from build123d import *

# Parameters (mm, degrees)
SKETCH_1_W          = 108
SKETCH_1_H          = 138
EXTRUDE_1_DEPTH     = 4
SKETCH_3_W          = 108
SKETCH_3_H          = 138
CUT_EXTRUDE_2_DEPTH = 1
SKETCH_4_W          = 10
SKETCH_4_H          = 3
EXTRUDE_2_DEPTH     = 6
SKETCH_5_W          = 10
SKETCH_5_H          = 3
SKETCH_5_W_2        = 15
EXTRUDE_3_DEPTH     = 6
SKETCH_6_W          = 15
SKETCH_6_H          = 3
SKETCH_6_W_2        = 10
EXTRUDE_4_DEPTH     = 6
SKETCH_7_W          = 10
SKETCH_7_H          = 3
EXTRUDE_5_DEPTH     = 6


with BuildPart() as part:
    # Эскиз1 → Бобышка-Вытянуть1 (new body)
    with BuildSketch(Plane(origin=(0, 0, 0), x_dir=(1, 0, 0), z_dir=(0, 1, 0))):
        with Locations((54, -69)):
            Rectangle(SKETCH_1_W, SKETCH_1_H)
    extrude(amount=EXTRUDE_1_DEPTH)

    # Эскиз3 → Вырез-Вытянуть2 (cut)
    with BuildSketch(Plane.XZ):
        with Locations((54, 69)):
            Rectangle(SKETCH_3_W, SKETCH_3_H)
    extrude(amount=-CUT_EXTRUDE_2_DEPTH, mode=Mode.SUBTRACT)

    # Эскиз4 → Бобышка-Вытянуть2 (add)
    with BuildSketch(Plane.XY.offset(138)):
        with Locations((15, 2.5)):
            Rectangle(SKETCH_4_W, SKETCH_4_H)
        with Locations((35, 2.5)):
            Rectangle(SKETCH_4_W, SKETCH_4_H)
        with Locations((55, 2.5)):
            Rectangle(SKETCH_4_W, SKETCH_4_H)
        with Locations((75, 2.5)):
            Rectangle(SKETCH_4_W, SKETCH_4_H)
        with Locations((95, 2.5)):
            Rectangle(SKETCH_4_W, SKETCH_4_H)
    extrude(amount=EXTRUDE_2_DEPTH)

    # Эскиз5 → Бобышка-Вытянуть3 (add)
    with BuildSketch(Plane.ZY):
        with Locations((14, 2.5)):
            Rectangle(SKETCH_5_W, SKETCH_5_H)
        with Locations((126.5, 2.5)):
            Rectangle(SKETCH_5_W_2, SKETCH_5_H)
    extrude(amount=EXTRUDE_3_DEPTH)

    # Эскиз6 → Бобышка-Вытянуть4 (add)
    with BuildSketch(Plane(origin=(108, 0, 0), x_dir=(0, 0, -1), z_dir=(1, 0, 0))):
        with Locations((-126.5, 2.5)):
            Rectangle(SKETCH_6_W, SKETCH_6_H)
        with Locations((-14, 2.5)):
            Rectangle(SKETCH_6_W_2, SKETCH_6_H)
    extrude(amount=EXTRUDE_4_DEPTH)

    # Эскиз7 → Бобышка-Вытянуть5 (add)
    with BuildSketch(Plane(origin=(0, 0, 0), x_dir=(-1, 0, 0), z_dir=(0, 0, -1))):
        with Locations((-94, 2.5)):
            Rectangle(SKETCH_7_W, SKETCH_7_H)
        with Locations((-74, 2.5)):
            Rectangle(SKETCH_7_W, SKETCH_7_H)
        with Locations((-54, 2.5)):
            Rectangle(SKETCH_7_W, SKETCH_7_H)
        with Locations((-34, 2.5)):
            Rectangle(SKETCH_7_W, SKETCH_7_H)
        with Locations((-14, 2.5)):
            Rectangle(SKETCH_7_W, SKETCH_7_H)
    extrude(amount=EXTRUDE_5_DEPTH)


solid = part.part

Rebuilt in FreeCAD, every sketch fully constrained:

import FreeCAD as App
import Part
import Sketcher
from FreeCAD import Vector
Q = App.Units.Quantity


def add_polygon(sketch, points):
    """Adds a closed chain of lines whose ends are joined by coincident constraints."""
    first, n = sketch.GeometryCount, len(points)
    for a, b in zip(points, points[1:] + points[:1]):
        sketch.addGeometry(Part.LineSegment(App.Vector(*a, 0), App.Vector(*b, 0)), False)
    for i in range(n):
        sketch.addConstraint(Sketcher.Constraint("Coincident", first + i, 2, first + (i + 1) % n, 1))

doc = App.newDocument("Part")
body = doc.addObject("PartDesign::Body", "Body")

sketch1 = body.newObject("Sketcher::SketchObject", "Sketch")
sketch1.AttachmentSupport = (doc.getObject("XZ_Plane"), [""])
sketch1.MapMode = "FlatFace"
add_polygon(sketch1, [(0, 0), (0, 138), (108, 138), (108, 0)])
sketch1.addConstraint(Sketcher.Constraint("Vertical", 0))
sketch1.addConstraint(Sketcher.Constraint("Horizontal", 1))
sketch1.addConstraint(Sketcher.Constraint("Vertical", 2))
sketch1.addConstraint(Sketcher.Constraint("Horizontal", 3))
sketch1.addConstraint(Sketcher.Constraint("Coincident", 3, 2, -1, 1))
sketch1.addConstraint(Sketcher.Constraint("DistanceX", 1, 1, 1, 2, Q("108 mm")))
sketch1.addConstraint(Sketcher.Constraint("DistanceY", 0, 1, 0, 2, Q("138 mm")))
pad1 = body.newObject("PartDesign::Pad", "Pad")
pad1.Profile = sketch1
pad1.Length = 4
pad1.Reversed = True

sketch2 = body.newObject("Sketcher::SketchObject", "Sketch001")
sketch2.AttachmentSupport = (doc.getObject("XZ_Plane"), [""])
sketch2.MapMode = "FlatFace"
add_polygon(sketch2, [(0, 138), (0, 0), (108, 0), (108, 138)])
sketch2.addConstraint(Sketcher.Constraint("Vertical", 0))
sketch2.addConstraint(Sketcher.Constraint("Horizontal", 1))
sketch2.addConstraint(Sketcher.Constraint("Vertical", 2))
sketch2.addConstraint(Sketcher.Constraint("Horizontal", 3))
sketch2.addConstraint(Sketcher.Constraint("Coincident", 0, 2, -1, 1))
sketch2.addConstraint(Sketcher.Constraint("DistanceX", 1, 1, 1, 2, Q("108 mm")))
sketch2.addConstraint(Sketcher.Constraint("DistanceY", 0, 2, 0, 1, Q("138 mm")))
pocket1 = body.newObject("PartDesign::Pocket", "Pocket")
pocket1.Profile = sketch2
pocket1.Length = 1

sketch3 = body.newObject("Sketcher::SketchObject", "Sketch002")
sketch3.AttachmentSupport = (doc.getObject("XY_Plane"), [""])
sketch3.MapMode = "FlatFace"
sketch3.AttachmentOffset = App.Placement(Vector(0, 0, 138), App.Rotation())
add_polygon(sketch3, [(10, 4), (10, 1), (20, 1), (20, 4)])
add_polygon(sketch3, [(30, 4), (30, 1), (40, 1), (40, 4)])
add_polygon(sketch3, [(50, 4), (50, 1), (60, 1), (60, 4)])
add_polygon(sketch3, [(70, 4), (70, 1), (80, 1), (80, 4)])
add_polygon(sketch3, [(90, 4), (90, 1), (100, 1), (100, 4)])
sketch3.addConstraint(Sketcher.Constraint("Vertical", 0))
sketch3.addConstraint(Sketcher.Constraint("Horizontal", 1))
sketch3.addConstraint(Sketcher.Constraint("Vertical", 2))
sketch3.addConstraint(Sketcher.Constraint("Horizontal", 3))
sketch3.addConstraint(Sketcher.Constraint("Vertical", 4))
sketch3.addConstraint(Sketcher.Constraint("Horizontal", 5))
sketch3.addConstraint(Sketcher.Constraint("Vertical", 6))
sketch3.addConstraint(Sketcher.Constraint("Horizontal", 7))
sketch3.addConstraint(Sketcher.Constraint("Vertical", 8))
sketch3.addConstraint(Sketcher.Constraint("Horizontal", 9))
sketch3.addConstraint(Sketcher.Constraint("Vertical", 10))
sketch3.addConstraint(Sketcher.Constraint("Horizontal", 11))
sketch3.addConstraint(Sketcher.Constraint("Vertical", 12))
sketch3.addConstraint(Sketcher.Constraint("Horizontal", 13))
sketch3.addConstraint(Sketcher.Constraint("Vertical", 14))
sketch3.addConstraint(Sketcher.Constraint("Horizontal", 15))
sketch3.addConstraint(Sketcher.Constraint("Vertical", 16))
sketch3.addConstraint(Sketcher.Constraint("Horizontal", 17))
sketch3.addConstraint(Sketcher.Constraint("Vertical", 18))
sketch3.addConstraint(Sketcher.Constraint("Horizontal", 19))
sketch3.addConstraint(Sketcher.Constraint("Horizontal", 1, 2, 4, 2))
sketch3.addConstraint(Sketcher.Constraint("Horizontal", 3, 2, 6, 2))
sketch3.addConstraint(Sketcher.Constraint("Horizontal", 5, 2, 8, 2))
sketch3.addConstraint(Sketcher.Constraint("Horizontal", 7, 2, 10, 2))
sketch3.addConstraint(Sketcher.Constraint("Horizontal", 9, 2, 12, 2))
sketch3.addConstraint(Sketcher.Constraint("Horizontal", 11, 2, 14, 2))
sketch3.addConstraint(Sketcher.Constraint("Horizontal", 13, 2, 16, 2))
sketch3.addConstraint(Sketcher.Constraint("Horizontal", 15, 2, 18, 2))
sketch3.addConstraint(Sketcher.Constraint("Equal", 3, 5))
sketch3.addConstraint(Sketcher.Constraint("Equal", 7, 9))
sketch3.addConstraint(Sketcher.Constraint("Equal", 11, 13))
sketch3.addConstraint(Sketcher.Constraint("Equal", 15, 17))
sketch3.addConstraint(Sketcher.Constraint("DistanceX", 1, 1, 1, 2, Q("10 mm")))
sketch3.addConstraint(Sketcher.Constraint("DistanceY", 0, 2, 0, 1, Q("3 mm")))
sketch3.addConstraint(Sketcher.Constraint("DistanceX", -1, 1, 0, 2, Q("10 mm")))
sketch3.addConstraint(Sketcher.Constraint("DistanceY", -1, 1, 0, 2, Q("1 mm")))
sketch3.addConstraint(Sketcher.Constraint("DistanceX", -1, 1, 4, 2, Q("30 mm")))
sketch3.addConstraint(Sketcher.Constraint("DistanceX", -1, 1, 8, 2, Q("50 mm")))
sketch3.addConstraint(Sketcher.Constraint("DistanceX", -1, 1, 12, 2, Q("70 mm")))
sketch3.addConstraint(Sketcher.Constraint("DistanceX", -1, 1, 16, 2, Q("90 mm")))
pad2 = body.newObject("PartDesign::Pad", "Pad001")
pad2.Profile = sketch3
pad2.Length = 6

sketch4 = body.newObject("Sketcher::SketchObject", "Sketch003")
sketch4.AttachmentSupport = (doc.getObject("YZ_Plane"), [""])
sketch4.MapMode = "FlatFace"
add_polygon(sketch4, [(4, 9), (1, 9), (1, 19), (4, 19)])
add_polygon(sketch4, [(4, 119), (1, 119), (1, 134), (4, 134)])
sketch4.addConstraint(Sketcher.Constraint("Horizontal", 0))
sketch4.addConstraint(Sketcher.Constraint("Vertical", 1))
sketch4.addConstraint(Sketcher.Constraint("Horizontal", 2))
sketch4.addConstraint(Sketcher.Constraint("Vertical", 3))
sketch4.addConstraint(Sketcher.Constraint("Horizontal", 4))
sketch4.addConstraint(Sketcher.Constraint("Vertical", 5))
sketch4.addConstraint(Sketcher.Constraint("Horizontal", 6))
sketch4.addConstraint(Sketcher.Constraint("Vertical", 7))
sketch4.addConstraint(Sketcher.Constraint("Vertical", 1, 2, 4, 2))
sketch4.addConstraint(Sketcher.Constraint("Vertical", 3, 2, 6, 2))
sketch4.addConstraint(Sketcher.Constraint("DistanceX", 0, 2, 0, 1, Q("3 mm")))
sketch4.addConstraint(Sketcher.Constraint("DistanceY", 1, 1, 1, 2, Q("10 mm")))
sketch4.addConstraint(Sketcher.Constraint("DistanceY", 5, 1, 5, 2, Q("15 mm")))
sketch4.addConstraint(Sketcher.Constraint("DistanceX", -1, 1, 0, 2, Q("1 mm")))
sketch4.addConstraint(Sketcher.Constraint("DistanceY", -1, 1, 0, 2, Q("9 mm")))
sketch4.addConstraint(Sketcher.Constraint("DistanceY", -1, 1, 4, 2, Q("119 mm")))
pad3 = body.newObject("PartDesign::Pad", "Pad002")
pad3.Profile = sketch4
pad3.Length = 6
pad3.Reversed = True

sketch5 = body.newObject("Sketcher::SketchObject", "Sketch004")
sketch5.AttachmentSupport = (doc.getObject("YZ_Plane"), [""])
sketch5.MapMode = "FlatFace"
sketch5.AttachmentOffset = App.Placement(Vector(0, 0, 108), App.Rotation())
add_polygon(sketch5, [(4, 134), (1, 134), (1, 119), (4, 119)])
add_polygon(sketch5, [(4, 19), (1, 19), (1, 9), (4, 9)])
sketch5.addConstraint(Sketcher.Constraint("Horizontal", 0))
sketch5.addConstraint(Sketcher.Constraint("Vertical", 1))
sketch5.addConstraint(Sketcher.Constraint("Horizontal", 2))
sketch5.addConstraint(Sketcher.Constraint("Vertical", 3))
sketch5.addConstraint(Sketcher.Constraint("Horizontal", 4))
sketch5.addConstraint(Sketcher.Constraint("Vertical", 5))
sketch5.addConstraint(Sketcher.Constraint("Horizontal", 6))
sketch5.addConstraint(Sketcher.Constraint("Vertical", 7))
sketch5.addConstraint(Sketcher.Constraint("Vertical", 1, 2, 4, 2))
sketch5.addConstraint(Sketcher.Constraint("Vertical", 3, 2, 6, 2))
sketch5.addConstraint(Sketcher.Constraint("DistanceX", 0, 2, 0, 1, Q("3 mm")))
sketch5.addConstraint(Sketcher.Constraint("DistanceY", 1, 2, 1, 1, Q("15 mm")))
sketch5.addConstraint(Sketcher.Constraint("DistanceY", 5, 2, 5, 1, Q("10 mm")))
sketch5.addConstraint(Sketcher.Constraint("DistanceX", -1, 1, 0, 2, Q("1 mm")))
sketch5.addConstraint(Sketcher.Constraint("DistanceY", -1, 1, 0, 2, Q("134 mm")))
sketch5.addConstraint(Sketcher.Constraint("DistanceY", -1, 1, 4, 2, Q("19 mm")))
pad4 = body.newObject("PartDesign::Pad", "Pad003")
pad4.Profile = sketch5
pad4.Length = 6

sketch6 = body.newObject("Sketcher::SketchObject", "Sketch005")
sketch6.AttachmentSupport = (doc.getObject("XY_Plane"), [""])
sketch6.MapMode = "FlatFace"
add_polygon(sketch6, [(99, 4), (99, 1), (89, 1), (89, 4)])
add_polygon(sketch6, [(79, 4), (79, 1), (69, 1), (69, 4)])
add_polygon(sketch6, [(59, 4), (59, 1), (49, 1), (49, 4)])
add_polygon(sketch6, [(39, 4), (39, 1), (29, 1), (29, 4)])
add_polygon(sketch6, [(19, 4), (19, 1), (9, 1), (9, 4)])
sketch6.addConstraint(Sketcher.Constraint("Vertical", 0))
sketch6.addConstraint(Sketcher.Constraint("Horizontal", 1))
sketch6.addConstraint(Sketcher.Constraint("Vertical", 2))
sketch6.addConstraint(Sketcher.Constraint("Horizontal", 3))
sketch6.addConstraint(Sketcher.Constraint("Vertical", 4))
sketch6.addConstraint(Sketcher.Constraint("Horizontal", 5))
sketch6.addConstraint(Sketcher.Constraint("Vertical", 6))
sketch6.addConstraint(Sketcher.Constraint("Horizontal", 7))
sketch6.addConstraint(Sketcher.Constraint("Vertical", 8))
sketch6.addConstraint(Sketcher.Constraint("Horizontal", 9))
sketch6.addConstraint(Sketcher.Constraint("Vertical", 10))
sketch6.addConstraint(Sketcher.Constraint("Horizontal", 11))
sketch6.addConstraint(Sketcher.Constraint("Vertical", 12))
sketch6.addConstraint(Sketcher.Constraint("Horizontal", 13))
sketch6.addConstraint(Sketcher.Constraint("Vertical", 14))
sketch6.addConstraint(Sketcher.Constraint("Horizontal", 15))
sketch6.addConstraint(Sketcher.Constraint("Vertical", 16))
sketch6.addConstraint(Sketcher.Constraint("Horizontal", 17))
sketch6.addConstraint(Sketcher.Constraint("Vertical", 18))
sketch6.addConstraint(Sketcher.Constraint("Horizontal", 19))
sketch6.addConstraint(Sketcher.Constraint("Horizontal", 1, 2, 4, 2))
sketch6.addConstraint(Sketcher.Constraint("Horizontal", 3, 2, 6, 2))
sketch6.addConstraint(Sketcher.Constraint("Horizontal", 5, 2, 8, 2))
sketch6.addConstraint(Sketcher.Constraint("Horizontal", 7, 2, 10, 2))
sketch6.addConstraint(Sketcher.Constraint("Horizontal", 9, 2, 12, 2))
sketch6.addConstraint(Sketcher.Constraint("Horizontal", 11, 2, 14, 2))
sketch6.addConstraint(Sketcher.Constraint("Horizontal", 13, 2, 16, 2))
sketch6.addConstraint(Sketcher.Constraint("Horizontal", 15, 2, 18, 2))
sketch6.addConstraint(Sketcher.Constraint("Equal", 3, 5))
sketch6.addConstraint(Sketcher.Constraint("Equal", 7, 9))
sketch6.addConstraint(Sketcher.Constraint("Equal", 11, 13))
sketch6.addConstraint(Sketcher.Constraint("Equal", 15, 17))
sketch6.addConstraint(Sketcher.Constraint("DistanceX", 1, 2, 1, 1, Q("10 mm")))
sketch6.addConstraint(Sketcher.Constraint("DistanceY", 0, 2, 0, 1, Q("3 mm")))
sketch6.addConstraint(Sketcher.Constraint("DistanceX", -1, 1, 0, 2, Q("99 mm")))
sketch6.addConstraint(Sketcher.Constraint("DistanceY", -1, 1, 0, 2, Q("1 mm")))
sketch6.addConstraint(Sketcher.Constraint("DistanceX", -1, 1, 4, 2, Q("79 mm")))
sketch6.addConstraint(Sketcher.Constraint("DistanceX", -1, 1, 8, 2, Q("59 mm")))
sketch6.addConstraint(Sketcher.Constraint("DistanceX", -1, 1, 12, 2, Q("39 mm")))
sketch6.addConstraint(Sketcher.Constraint("DistanceX", -1, 1, 16, 2, Q("19 mm")))
pad5 = body.newObject("PartDesign::Pad", "Pad004")
pad5.Profile = sketch6
pad5.Length = 6
pad5.Reversed = True

doc.recompute()
